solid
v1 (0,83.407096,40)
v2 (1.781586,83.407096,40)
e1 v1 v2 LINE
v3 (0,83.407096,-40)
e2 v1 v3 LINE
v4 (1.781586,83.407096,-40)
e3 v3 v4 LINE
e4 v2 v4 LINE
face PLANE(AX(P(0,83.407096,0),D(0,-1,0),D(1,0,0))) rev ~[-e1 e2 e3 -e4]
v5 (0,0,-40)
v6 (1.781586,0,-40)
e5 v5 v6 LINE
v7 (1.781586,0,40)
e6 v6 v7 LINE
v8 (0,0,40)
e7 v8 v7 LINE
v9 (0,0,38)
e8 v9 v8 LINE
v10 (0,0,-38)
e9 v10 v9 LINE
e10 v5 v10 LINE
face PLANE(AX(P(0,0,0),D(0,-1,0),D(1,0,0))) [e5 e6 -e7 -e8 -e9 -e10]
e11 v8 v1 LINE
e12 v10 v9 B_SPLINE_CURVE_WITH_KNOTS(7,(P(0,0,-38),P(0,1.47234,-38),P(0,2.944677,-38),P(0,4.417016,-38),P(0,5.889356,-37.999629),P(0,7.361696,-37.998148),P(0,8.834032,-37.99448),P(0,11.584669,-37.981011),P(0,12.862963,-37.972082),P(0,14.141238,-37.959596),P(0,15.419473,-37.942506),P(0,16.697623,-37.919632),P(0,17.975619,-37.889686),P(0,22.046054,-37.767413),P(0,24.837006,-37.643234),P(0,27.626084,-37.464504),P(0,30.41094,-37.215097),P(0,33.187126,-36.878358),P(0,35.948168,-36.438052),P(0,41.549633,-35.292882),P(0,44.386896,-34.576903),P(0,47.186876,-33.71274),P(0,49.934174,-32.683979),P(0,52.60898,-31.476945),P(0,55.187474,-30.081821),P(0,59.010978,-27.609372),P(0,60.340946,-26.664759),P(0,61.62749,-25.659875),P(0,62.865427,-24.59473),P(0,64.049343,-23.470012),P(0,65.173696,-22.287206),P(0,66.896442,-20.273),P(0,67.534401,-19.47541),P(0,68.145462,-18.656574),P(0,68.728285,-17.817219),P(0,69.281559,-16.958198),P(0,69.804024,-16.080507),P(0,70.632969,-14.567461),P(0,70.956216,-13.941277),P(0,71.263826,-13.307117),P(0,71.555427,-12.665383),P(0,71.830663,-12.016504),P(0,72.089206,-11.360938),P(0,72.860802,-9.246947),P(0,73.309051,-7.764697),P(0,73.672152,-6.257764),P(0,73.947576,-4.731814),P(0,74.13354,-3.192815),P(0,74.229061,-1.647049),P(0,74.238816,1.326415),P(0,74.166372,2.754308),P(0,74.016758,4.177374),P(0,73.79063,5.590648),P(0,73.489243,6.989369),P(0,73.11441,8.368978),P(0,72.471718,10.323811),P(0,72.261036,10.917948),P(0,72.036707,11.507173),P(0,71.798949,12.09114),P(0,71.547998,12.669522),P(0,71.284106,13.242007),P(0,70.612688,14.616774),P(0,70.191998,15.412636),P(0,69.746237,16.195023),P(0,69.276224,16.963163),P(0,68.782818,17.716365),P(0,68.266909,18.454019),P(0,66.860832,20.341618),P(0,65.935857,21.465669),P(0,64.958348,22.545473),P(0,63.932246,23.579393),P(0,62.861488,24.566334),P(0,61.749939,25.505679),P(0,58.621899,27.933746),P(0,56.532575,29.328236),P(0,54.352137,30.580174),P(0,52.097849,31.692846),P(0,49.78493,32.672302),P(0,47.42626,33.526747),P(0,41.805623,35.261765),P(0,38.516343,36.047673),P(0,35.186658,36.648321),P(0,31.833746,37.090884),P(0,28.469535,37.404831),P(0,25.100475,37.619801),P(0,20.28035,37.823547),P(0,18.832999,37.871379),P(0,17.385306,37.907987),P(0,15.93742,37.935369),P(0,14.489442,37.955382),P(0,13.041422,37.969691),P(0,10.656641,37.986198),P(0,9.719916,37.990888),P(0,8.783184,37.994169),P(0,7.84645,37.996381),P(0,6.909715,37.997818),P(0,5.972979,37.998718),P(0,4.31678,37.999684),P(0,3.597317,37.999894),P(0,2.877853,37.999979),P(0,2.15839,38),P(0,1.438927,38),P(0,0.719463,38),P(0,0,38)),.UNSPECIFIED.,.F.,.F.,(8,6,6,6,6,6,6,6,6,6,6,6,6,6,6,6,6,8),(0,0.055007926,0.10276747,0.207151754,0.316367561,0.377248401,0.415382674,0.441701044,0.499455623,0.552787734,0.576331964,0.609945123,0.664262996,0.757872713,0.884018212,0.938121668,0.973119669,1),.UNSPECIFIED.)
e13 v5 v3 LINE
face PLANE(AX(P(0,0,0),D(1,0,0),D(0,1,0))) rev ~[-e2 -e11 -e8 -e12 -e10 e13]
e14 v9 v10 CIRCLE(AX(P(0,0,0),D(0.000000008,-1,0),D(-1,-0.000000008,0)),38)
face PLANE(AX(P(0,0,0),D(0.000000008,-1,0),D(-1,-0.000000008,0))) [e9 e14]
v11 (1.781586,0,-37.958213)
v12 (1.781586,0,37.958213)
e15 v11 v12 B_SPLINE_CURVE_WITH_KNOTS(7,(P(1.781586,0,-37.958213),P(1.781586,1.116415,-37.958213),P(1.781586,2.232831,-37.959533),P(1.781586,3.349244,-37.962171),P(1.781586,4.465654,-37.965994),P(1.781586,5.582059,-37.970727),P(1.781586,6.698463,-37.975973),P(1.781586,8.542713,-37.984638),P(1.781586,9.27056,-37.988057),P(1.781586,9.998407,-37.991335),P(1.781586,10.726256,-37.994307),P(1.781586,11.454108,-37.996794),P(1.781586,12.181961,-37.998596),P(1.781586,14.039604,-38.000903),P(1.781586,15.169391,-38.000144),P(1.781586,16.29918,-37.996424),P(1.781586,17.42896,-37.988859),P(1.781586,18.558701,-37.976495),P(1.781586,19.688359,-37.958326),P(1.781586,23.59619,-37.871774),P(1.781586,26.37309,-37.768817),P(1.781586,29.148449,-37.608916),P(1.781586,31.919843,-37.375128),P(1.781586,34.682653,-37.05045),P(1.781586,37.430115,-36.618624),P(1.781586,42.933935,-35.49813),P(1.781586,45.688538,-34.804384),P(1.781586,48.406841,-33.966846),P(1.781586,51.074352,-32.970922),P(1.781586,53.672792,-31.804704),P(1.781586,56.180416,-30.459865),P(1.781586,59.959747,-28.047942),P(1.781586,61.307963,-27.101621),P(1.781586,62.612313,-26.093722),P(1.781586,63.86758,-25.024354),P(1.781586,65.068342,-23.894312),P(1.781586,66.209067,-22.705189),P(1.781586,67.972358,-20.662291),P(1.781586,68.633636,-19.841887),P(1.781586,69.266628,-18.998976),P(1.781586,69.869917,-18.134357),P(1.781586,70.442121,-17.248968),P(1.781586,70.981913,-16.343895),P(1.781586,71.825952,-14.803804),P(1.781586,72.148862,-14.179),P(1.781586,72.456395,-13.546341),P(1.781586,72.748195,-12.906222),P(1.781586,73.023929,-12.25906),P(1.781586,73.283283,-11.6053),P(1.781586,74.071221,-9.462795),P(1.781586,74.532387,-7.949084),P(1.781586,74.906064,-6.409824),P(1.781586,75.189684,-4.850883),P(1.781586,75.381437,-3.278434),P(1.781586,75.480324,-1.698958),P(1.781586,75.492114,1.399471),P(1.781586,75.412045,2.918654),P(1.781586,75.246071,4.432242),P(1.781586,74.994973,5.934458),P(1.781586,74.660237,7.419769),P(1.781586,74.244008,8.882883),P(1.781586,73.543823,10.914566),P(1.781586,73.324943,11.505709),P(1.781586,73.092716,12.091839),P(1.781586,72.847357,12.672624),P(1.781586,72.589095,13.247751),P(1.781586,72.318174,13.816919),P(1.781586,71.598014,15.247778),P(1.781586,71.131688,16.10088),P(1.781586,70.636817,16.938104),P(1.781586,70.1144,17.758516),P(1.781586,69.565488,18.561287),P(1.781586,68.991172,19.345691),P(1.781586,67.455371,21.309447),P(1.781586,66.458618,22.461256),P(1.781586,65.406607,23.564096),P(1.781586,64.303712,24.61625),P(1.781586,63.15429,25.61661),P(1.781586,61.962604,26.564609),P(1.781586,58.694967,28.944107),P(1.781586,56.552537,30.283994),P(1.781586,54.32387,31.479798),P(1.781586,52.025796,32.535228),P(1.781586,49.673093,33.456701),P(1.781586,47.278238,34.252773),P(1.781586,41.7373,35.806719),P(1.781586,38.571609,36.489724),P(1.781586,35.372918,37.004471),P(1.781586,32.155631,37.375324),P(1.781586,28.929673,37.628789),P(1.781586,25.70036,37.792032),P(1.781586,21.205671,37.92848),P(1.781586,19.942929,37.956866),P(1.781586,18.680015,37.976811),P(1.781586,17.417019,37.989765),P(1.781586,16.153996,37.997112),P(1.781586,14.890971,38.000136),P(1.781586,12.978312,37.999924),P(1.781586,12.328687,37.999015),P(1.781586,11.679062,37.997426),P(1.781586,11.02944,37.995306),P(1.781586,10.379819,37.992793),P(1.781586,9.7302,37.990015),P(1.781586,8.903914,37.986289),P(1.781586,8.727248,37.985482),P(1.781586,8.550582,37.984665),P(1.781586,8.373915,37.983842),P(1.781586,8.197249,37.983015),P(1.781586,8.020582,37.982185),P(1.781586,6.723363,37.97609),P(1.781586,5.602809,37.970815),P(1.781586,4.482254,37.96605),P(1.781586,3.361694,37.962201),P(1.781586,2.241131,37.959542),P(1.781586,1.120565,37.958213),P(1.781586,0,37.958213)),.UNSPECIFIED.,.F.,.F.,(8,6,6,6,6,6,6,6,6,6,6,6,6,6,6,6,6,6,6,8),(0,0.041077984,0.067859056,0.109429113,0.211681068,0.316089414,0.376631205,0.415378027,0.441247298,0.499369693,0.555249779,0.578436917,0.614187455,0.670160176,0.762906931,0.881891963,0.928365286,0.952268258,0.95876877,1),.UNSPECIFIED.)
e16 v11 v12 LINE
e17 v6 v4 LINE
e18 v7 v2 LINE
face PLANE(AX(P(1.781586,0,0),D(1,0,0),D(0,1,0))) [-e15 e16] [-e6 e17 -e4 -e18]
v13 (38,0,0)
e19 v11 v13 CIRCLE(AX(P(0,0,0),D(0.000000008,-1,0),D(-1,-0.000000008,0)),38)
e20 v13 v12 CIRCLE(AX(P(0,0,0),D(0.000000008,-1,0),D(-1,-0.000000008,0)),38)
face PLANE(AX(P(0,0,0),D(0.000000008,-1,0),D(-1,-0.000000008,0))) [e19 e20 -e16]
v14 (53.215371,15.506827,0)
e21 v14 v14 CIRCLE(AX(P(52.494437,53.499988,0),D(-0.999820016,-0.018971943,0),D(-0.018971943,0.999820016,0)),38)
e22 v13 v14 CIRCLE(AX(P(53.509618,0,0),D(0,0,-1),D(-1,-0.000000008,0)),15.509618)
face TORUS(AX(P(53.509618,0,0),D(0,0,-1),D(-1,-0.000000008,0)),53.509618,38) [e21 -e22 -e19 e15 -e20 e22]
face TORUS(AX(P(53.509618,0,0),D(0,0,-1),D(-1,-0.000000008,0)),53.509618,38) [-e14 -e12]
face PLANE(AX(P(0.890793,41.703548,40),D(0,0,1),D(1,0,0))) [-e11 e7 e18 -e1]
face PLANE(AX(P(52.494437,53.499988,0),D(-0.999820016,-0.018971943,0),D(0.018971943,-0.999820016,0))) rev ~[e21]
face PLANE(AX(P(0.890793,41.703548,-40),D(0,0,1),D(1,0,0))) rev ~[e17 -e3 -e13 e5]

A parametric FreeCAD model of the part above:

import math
import FreeCAD as App
import Part
import Sketcher
from FreeCAD import Vector
Q = App.Units.Quantity

doc = App.newDocument("Part")
params = doc.addObject("Spreadsheet::Sheet", "Params")
for row, (alias, value) in enumerate([
    ("sketch1_diameter", "76 mm"),
    ("pad1_length", "80 mm"),
], start=1):
    params.set(f"A{row}", alias)
    params.set(f"B{row}", "=" + value)
    params.setAlias(f"B{row}", alias)

body = doc.addObject("PartDesign::Body", "Body")

# Sketch on XZ plane
sketch1 = doc.addObject("Sketcher::SketchObject", "Sketch")
body.addObject(sketch1)
sketch1.AttachmentSupport = (doc.XZ_Plane, [""])
sketch1.MapMode = "FlatFace"
sketch1.addGeometry(Part.Circle(Vector(0, 0, 0), Vector(0, 0, 1), 38), False)
sketch1.addConstraint(Sketcher.Constraint("Coincident", 0, 3, -1, 1))
sketch1.addConstraint(Sketcher.Constraint("Diameter", 0, Q("76 mm")))
sketch1.setExpression("Constraints[1]", "Params.sketch1_diameter")

# Sketch on XY plane
sketch2 = doc.addObject("Sketcher::SketchObject", "Sketch001")
body.addObject(sketch2)
sketch2.AttachmentSupport = (doc.XY_Plane, [""])
sketch2.MapMode = "FlatFace"
sketch2.addGeometry(Part.ArcOfCircle(Part.Circle(Vector(53.509618, 0, 0), Vector(0, 0, 1), 53.509618), math.radians(91.087077), math.radians(180)), False)
sketch2.addConstraint(Sketcher.Constraint("Coincident", 0, 2, -1, 1))
sketch2.addConstraint(Sketcher.Constraint("PointOnObject", 0, 3, -1))
sketch2.addConstraint(Sketcher.Constraint("Radius", 0, Q("53.509618 mm")))
sketch2.addConstraint(Sketcher.Constraint("DistanceY", -1, 1, 0, 1, Q("53.499988 mm")))
doc.recompute()

additivepipe = doc.addObject("PartDesign::AdditivePipe", "AdditivePipe")
body.addObject(additivepipe)
additivepipe.Profile = sketch1
additivepipe.Spine = (sketch2, ["Edge1"])

# Sketch on XY plane
sketch3 = doc.addObject("Sketcher::SketchObject", "Sketch002")
body.addObject(sketch3)
sketch3.AttachmentSupport = (doc.XY_Plane, [""])
sketch3.MapMode = "FlatFace"
sketch3.addGeometry(Part.LineSegment(Vector(0, 83.4, 0), Vector(0, 0, 0)), False)
sketch3.addGeometry(Part.LineSegment(Vector(0, 0, 0), Vector(1.8, 0, 0)), False)
sketch3.addGeometry(Part.LineSegment(Vector(1.8, 0, 0), Vector(1.8, 83.4, 0)), False)
sketch3.addGeometry(Part.LineSegment(Vector(1.8, 83.4, 0), Vector(0, 83.4, 0)), False)
sketch3.addConstraint(Sketcher.Constraint("Coincident", 0, 2, 1, 1))
sketch3.addConstraint(Sketcher.Constraint("Coincident", 1, 2, 2, 1))
sketch3.addConstraint(Sketcher.Constraint("Coincident", 2, 2, 3, 1))
sketch3.addConstraint(Sketcher.Constraint("Coincident", 3, 2, 0, 1))
sketch3.addConstraint(Sketcher.Constraint("Vertical", 0))
sketch3.addConstraint(Sketcher.Constraint("Horizontal", 1))
sketch3.addConstraint(Sketcher.Constraint("Vertical", 2))
sketch3.addConstraint(Sketcher.Constraint("Horizontal", 3))
sketch3.addConstraint(Sketcher.Constraint("Coincident", 0, 2, -1, 1))
sketch3.addConstraint(Sketcher.Constraint("DistanceX", 1, 1, 1, 2, Q("1.781586 mm")))
sketch3.addConstraint(Sketcher.Constraint("DistanceY", 0, 2, 0, 1, Q("83.407097 mm")))
pad1 = doc.addObject("PartDesign::Pad", "Pad")
body.addObject(pad1)
pad1.Profile = sketch3
pad1.setExpression("Length", "Params.pad1_length")
pad1.Midplane = True

doc.recompute()
